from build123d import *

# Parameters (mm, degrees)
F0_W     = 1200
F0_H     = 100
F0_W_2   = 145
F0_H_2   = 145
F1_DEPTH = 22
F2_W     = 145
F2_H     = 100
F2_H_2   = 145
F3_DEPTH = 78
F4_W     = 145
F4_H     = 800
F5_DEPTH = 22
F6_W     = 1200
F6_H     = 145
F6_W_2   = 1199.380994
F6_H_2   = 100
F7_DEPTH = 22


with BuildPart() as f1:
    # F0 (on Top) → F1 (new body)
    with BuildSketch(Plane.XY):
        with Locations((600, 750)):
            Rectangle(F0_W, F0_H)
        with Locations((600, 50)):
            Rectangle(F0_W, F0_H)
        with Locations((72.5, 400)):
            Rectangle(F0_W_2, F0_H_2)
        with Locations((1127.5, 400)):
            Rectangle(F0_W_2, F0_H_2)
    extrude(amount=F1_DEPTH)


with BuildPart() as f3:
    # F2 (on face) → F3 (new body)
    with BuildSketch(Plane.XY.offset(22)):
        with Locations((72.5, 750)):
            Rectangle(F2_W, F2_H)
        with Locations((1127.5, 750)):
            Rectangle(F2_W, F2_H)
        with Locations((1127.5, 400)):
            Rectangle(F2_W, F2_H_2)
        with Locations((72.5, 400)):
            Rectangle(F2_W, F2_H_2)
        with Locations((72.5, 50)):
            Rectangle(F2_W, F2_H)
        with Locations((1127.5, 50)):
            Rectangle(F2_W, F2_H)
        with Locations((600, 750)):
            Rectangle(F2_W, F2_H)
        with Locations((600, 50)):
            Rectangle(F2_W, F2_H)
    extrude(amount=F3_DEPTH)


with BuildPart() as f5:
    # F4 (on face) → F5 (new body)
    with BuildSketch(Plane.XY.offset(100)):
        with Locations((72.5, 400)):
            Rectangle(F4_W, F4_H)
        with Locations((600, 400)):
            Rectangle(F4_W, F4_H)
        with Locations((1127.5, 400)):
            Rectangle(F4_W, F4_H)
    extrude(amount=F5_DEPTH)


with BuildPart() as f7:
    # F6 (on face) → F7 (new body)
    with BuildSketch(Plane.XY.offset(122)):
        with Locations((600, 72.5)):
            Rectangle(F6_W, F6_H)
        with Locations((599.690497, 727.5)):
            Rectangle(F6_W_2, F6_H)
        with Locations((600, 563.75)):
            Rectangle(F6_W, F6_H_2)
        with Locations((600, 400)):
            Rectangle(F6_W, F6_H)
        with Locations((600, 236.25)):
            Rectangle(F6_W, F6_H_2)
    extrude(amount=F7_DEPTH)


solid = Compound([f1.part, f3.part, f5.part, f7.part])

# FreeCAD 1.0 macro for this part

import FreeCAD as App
import Part
import Sketcher
Q = App.Units.Quantity

doc = App.newDocument("Part")
body = doc.addObject("PartDesign::Body", "Body")
body.AllowCompound = True

# Sketch on XY plane
sketch1 = body.newObject("Sketcher::SketchObject", "Sketch")
sketch1.AttachmentSupport = (doc.getObject("XY_Plane"), [""])
sketch1.MapMode = "FlatFace"
sketch1.addGeometry([
    Part.LineSegment(App.Vector(0, 800, 0), App.Vector(0, 700, 0)),  # 0
    Part.LineSegment(App.Vector(0, 700, 0), App.Vector(1200, 700, 0)),  # 1
    Part.LineSegment(App.Vector(1200, 700, 0), App.Vector(1200, 800, 0)),  # 2
    Part.LineSegment(App.Vector(1200, 800, 0), App.Vector(0, 800, 0)),  # 3
    Part.LineSegment(App.Vector(0, 100, 0), App.Vector(0, 0, 0)),  # 4
    Part.LineSegment(App.Vector(0, 0, 0), App.Vector(1200, 0, 0)),  # 5
    Part.LineSegment(App.Vector(1200, 0, 0), App.Vector(1200, 100, 0)),  # 6
    Part.LineSegment(App.Vector(1200, 100, 0), App.Vector(0, 100, 0)),  # 7
    Part.LineSegment(App.Vector(0, 472.5, 0), App.Vector(0, 327.5, 0)),  # 8
    Part.LineSegment(App.Vector(0, 327.5, 0), App.Vector(145, 327.5, 0)),  # 9
    Part.LineSegment(App.Vector(145, 327.5, 0), App.Vector(145, 472.5, 0)),  # 10
    Part.LineSegment(App.Vector(145, 472.5, 0), App.Vector(0, 472.5, 0)),  # 11
    Part.LineSegment(App.Vector(1055, 472.5, 0), App.Vector(1055, 327.5, 0)),  # 12
    Part.LineSegment(App.Vector(1055, 327.5, 0), App.Vector(1200, 327.5, 0)),  # 13
    Part.LineSegment(App.Vector(1200, 327.5, 0), App.Vector(1200, 472.5, 0)),  # 14
    Part.LineSegment(App.Vector(1200, 472.5, 0), App.Vector(1055, 472.5, 0)),  # 15
], False)
sketch1.addConstraint([
    Sketcher.Constraint("Coincident", 0, 2, 1, 1),
    Sketcher.Constraint("Coincident", 1, 2, 2, 1),
    Sketcher.Constraint("Coincident", 2, 2, 3, 1),
    Sketcher.Constraint("Coincident", 3, 2, 0, 1),
    Sketcher.Constraint("Coincident", 4, 2, 5, 1),
    Sketcher.Constraint("Coincident", 5, 2, 6, 1),
    Sketcher.Constraint("Coincident", 6, 2, 7, 1),
    Sketcher.Constraint("Coincident", 7, 2, 4, 1),
    Sketcher.Constraint("Coincident", 8, 2, 9, 1),
    Sketcher.Constraint("Coincident", 9, 2, 10, 1),
    Sketcher.Constraint("Coincident", 10, 2, 11, 1),
    Sketcher.Constraint("Coincident", 11, 2, 8, 1),
    Sketcher.Constraint("Coincident", 12, 2, 13, 1),
    Sketcher.Constraint("Coincident", 13, 2, 14, 1),
    Sketcher.Constraint("Coincident", 14, 2, 15, 1),
    Sketcher.Constraint("Coincident", 15, 2, 12, 1),
    Sketcher.Constraint("Vertical", 0),
    Sketcher.Constraint("Horizontal", 1),
    Sketcher.Constraint("Vertical", 2),
    Sketcher.Constraint("Horizontal", 3),
    Sketcher.Constraint("Vertical", 4),
    Sketcher.Constraint("Horizontal", 5),
    Sketcher.Constraint("Vertical", 6),
    Sketcher.Constraint("Horizontal", 7),
    Sketcher.Constraint("Vertical", 8),
    Sketcher.Constraint("Horizontal", 9),
    Sketcher.Constraint("Vertical", 10),
    Sketcher.Constraint("Horizontal", 11),
    Sketcher.Constraint("Vertical", 12),
    Sketcher.Constraint("Horizontal", 13),
    Sketcher.Constraint("Vertical", 14),
    Sketcher.Constraint("Horizontal", 15),
    Sketcher.Constraint("Coincident", 4, 2, -1, 1),
    Sketcher.Constraint("PointOnObject", 0, 2, -2),
    Sketcher.Constraint("PointOnObject", 8, 2, -2),
    Sketcher.Constraint("Horizontal", 9, 2, 12, 2),
    Sketcher.Constraint("Horizontal", 11, 2, 14, 2),
    Sketcher.Constraint("Vertical", 2, 2, 5, 2),
    Sketcher.Constraint("Vertical", 6, 2, 13, 2),
    Sketcher.Constraint("Equal", 11, 13),
    Sketcher.Constraint("Equal", 2, 4),
    Sketcher.Constraint("Equal", 15, 8),
    Sketcher.Constraint("DistanceX", 1, 1, 1, 2, Q("1200 mm")),
    Sketcher.Constraint("DistanceX", 9, 1, 9, 2, Q("145 mm")),
    Sketcher.Constraint("DistanceY", 0, 2, 0, 1, Q("100 mm")),
    Sketcher.Constraint("DistanceY", -1, 1, 0, 2, Q("700 mm")),
    Sketcher.Constraint("DistanceY", -1, 1, 8, 2, Q("327.5 mm")),
])
pad1 = body.newObject("PartDesign::Pad", "Pad")
pad1.Profile = sketch1
pad1.Length = 22
body2 = doc.addObject("PartDesign::Body", "Body001")
body2.AllowCompound = True

# Sketch on XY plane
sketch2 = body2.newObject("Sketcher::SketchObject", "Sketch001")
sketch2.AttachmentSupport = (doc.getObject("XY_Plane001"), [""])
sketch2.MapMode = "FlatFace"
sketch2.AttachmentOffset = App.Placement(App.Vector(0, 0, 22), App.Rotation())
sketch2.addGeometry([
    Part.LineSegment(App.Vector(0, 800, 0), App.Vector(0, 700, 0)),  # 0
    Part.LineSegment(App.Vector(0, 700, 0), App.Vector(145, 700, 0)),  # 1
    Part.LineSegment(App.Vector(145, 700, 0), App.Vector(145, 800, 0)),  # 2
    Part.LineSegment(App.Vector(145, 800, 0), App.Vector(0, 800, 0)),  # 3
    Part.LineSegment(App.Vector(1055, 800, 0), App.Vector(1055, 700, 0)),  # 4
    Part.LineSegment(App.Vector(1055, 700, 0), App.Vector(1200, 700, 0)),  # 5
    Part.LineSegment(App.Vector(1200, 700, 0), App.Vector(1200, 800, 0)),  # 6
    Part.LineSegment(App.Vector(1200, 800, 0), App.Vector(1055, 800, 0)),  # 7
    Part.LineSegment(App.Vector(1055, 472.5, 0), App.Vector(1055, 327.5, 0)),  # 8
    Part.LineSegment(App.Vector(1055, 327.5, 0), App.Vector(1200, 327.5, 0)),  # 9
    Part.LineSegment(App.Vector(1200, 327.5, 0), App.Vector(1200, 472.5, 0)),  # 10
    Part.LineSegment(App.Vector(1200, 472.5, 0), App.Vector(1055, 472.5, 0)),  # 11
    Part.LineSegment(App.Vector(0, 472.5, 0), App.Vector(0, 327.5, 0)),  # 12
    Part.LineSegment(App.Vector(0, 327.5, 0), App.Vector(145, 327.5, 0)),  # 13
    Part.LineSegment(App.Vector(145, 327.5, 0), App.Vector(145, 472.5, 0)),  # 14
    Part.LineSegment(App.Vector(145, 472.5, 0), App.Vector(0, 472.5, 0)),  # 15
    Part.LineSegment(App.Vector(0, 100, 0), App.Vector(0, 0, 0)),  # 16
    Part.LineSegment(App.Vector(0, 0, 0), App.Vector(145, 0, 0)),  # 17
    Part.LineSegment(App.Vector(145, 0, 0), App.Vector(145, 100, 0)),  # 18
    Part.LineSegment(App.Vector(145, 100, 0), App.Vector(0, 100, 0)),  # 19
    Part.LineSegment(App.Vector(1055, 100, 0), App.Vector(1055, 0, 0)),  # 20
    Part.LineSegment(App.Vector(1055, 0, 0), App.Vector(1200, 0, 0)),  # 21
    Part.LineSegment(App.Vector(1200, 0, 0), App.Vector(1200, 100, 0)),  # 22
    Part.LineSegment(App.Vector(1200, 100, 0), App.Vector(1055, 100, 0)),  # 23
    Part.LineSegment(App.Vector(527.5, 800, 0), App.Vector(527.5, 700, 0)),  # 24
    Part.LineSegment(App.Vector(527.5, 700, 0), App.Vector(672.5, 700, 0)),  # 25
    Part.LineSegment(App.Vector(672.5, 700, 0), App.Vector(672.5, 800, 0)),  # 26
    Part.LineSegment(App.Vector(672.5, 800, 0), App.Vector(527.5, 800, 0)),  # 27
    Part.LineSegment(App.Vector(527.5, 100, 0), App.Vector(527.5, 0, 0)),  # 28
    Part.LineSegment(App.Vector(527.5, 0, 0), App.Vector(672.5, 0, 0)),  # 29
    Part.LineSegment(App.Vector(672.5, 0, 0), App.Vector(672.5, 100, 0)),  # 30
    Part.LineSegment(App.Vector(672.5, 100, 0), App.Vector(527.5, 100, 0)),  # 31
], False)
sketch2.addConstraint([
    Sketcher.Constraint("Coincident", 0, 2, 1, 1),
    Sketcher.Constraint("Coincident", 1, 2, 2, 1),
    Sketcher.Constraint("Coincident", 2, 2, 3, 1),
    Sketcher.Constraint("Coincident", 3, 2, 0, 1),
    Sketcher.Constraint("Coincident", 4, 2, 5, 1),
    Sketcher.Constraint("Coincident", 5, 2, 6, 1),
    Sketcher.Constraint("Coincident", 6, 2, 7, 1),
    Sketcher.Constraint("Coincident", 7, 2, 4, 1),
    Sketcher.Constraint("Coincident", 8, 2, 9, 1),
    Sketcher.Constraint("Coincident", 9, 2, 10, 1),
    Sketcher.Constraint("Coincident", 10, 2, 11, 1),
    Sketcher.Constraint("Coincident", 11, 2, 8, 1),
    Sketcher.Constraint("Coincident", 12, 2, 13, 1),
    Sketcher.Constraint("Coincident", 13, 2, 14, 1),
    Sketcher.Constraint("Coincident", 14, 2, 15, 1),
    Sketcher.Constraint("Coincident", 15, 2, 12, 1),
    Sketcher.Constraint("Coincident", 16, 2, 17, 1),
    Sketcher.Constraint("Coincident", 17, 2, 18, 1),
    Sketcher.Constraint("Coincident", 18, 2, 19, 1),
    Sketcher.Constraint("Coincident", 19, 2, 16, 1),
    Sketcher.Constraint("Coincident", 20, 2, 21, 1),
    Sketcher.Constraint("Coincident", 21, 2, 22, 1),
    Sketcher.Constraint("Coincident", 22, 2, 23, 1),
    Sketcher.Constraint("Coincident", 23, 2, 20, 1),
    Sketcher.Constraint("Coincident", 24, 2, 25, 1),
    Sketcher.Constraint("Coincident", 25, 2, 26, 1),
    Sketcher.Constraint("Coincident", 26, 2, 27, 1),
    Sketcher.Constraint("Coincident", 27, 2, 24, 1),
    Sketcher.Constraint("Coincident", 28, 2, 29, 1),
    Sketcher.Constraint("Coincident", 29, 2, 30, 1),
    Sketcher.Constraint("Coincident", 30, 2, 31, 1),
    Sketcher.Constraint("Coincident", 31, 2, 28, 1),
    Sketcher.Constraint("Vertical", 0),
    Sketcher.Constraint("Horizontal", 1),
    Sketcher.Constraint("Vertical", 2),
    Sketcher.Constraint("Horizontal", 3),
    Sketcher.Constraint("Vertical", 4),
    Sketcher.Constraint("Horizontal", 5),
    Sketcher.Constraint("Vertical", 6),
    Sketcher.Constraint("Horizontal", 7),
    Sketcher.Constraint("Vertical", 8),
    Sketcher.Constraint("Horizontal", 9),
    Sketcher.Constraint("Vertical", 10),
    Sketcher.Constraint("Horizontal", 11),
    Sketcher.Constraint("Vertical", 12),
    Sketcher.Constraint("Horizontal", 13),
    Sketcher.Constraint("Vertical", 14),
    Sketcher.Constraint("Horizontal", 15),
    Sketcher.Constraint("Vertical", 16),
    Sketcher.Constraint("Horizontal", 17),
    Sketcher.Constraint("Vertical", 18),
    Sketcher.Constraint("Horizontal", 19),
    Sketcher.Constraint("Vertical", 20),
    Sketcher.Constraint("Horizontal", 21),
    Sketcher.Constraint("Vertical", 22),
    Sketcher.Constraint("Horizontal", 23),
    Sketcher.Constraint("Vertical", 24),
    Sketcher.Constraint("Horizontal", 25),
    Sketcher.Constraint("Vertical", 26),
    Sketcher.Constraint("Horizontal", 27),
    Sketcher.Constraint("Vertical", 28),
    Sketcher.Constraint("Horizontal", 29),
    Sketcher.Constraint("Vertical", 30),
    Sketcher.Constraint("Horizontal", 31),
    Sketcher.Constraint("Coincident", 16, 2, -1, 1),
    Sketcher.Constraint("PointOnObject", 0, 2, -2),
    Sketcher.Constraint("PointOnObject", 12, 2, -2),
    Sketcher.Constraint("PointOnObject", 20, 2, -1),
    Sketcher.Constraint("PointOnObject", 28, 2, -1),
    Sketcher.Constraint("Horizontal", 1, 2, 4, 2),
    Sketcher.Constraint("Horizontal", 3, 2, 6, 2),
    Sketcher.Constraint("Horizontal", 9, 2, 12, 2),
    Sketcher.Constraint("Horizontal", 11, 2, 14, 2),
    Sketcher.Constraint("Horizontal", 19, 2, 22, 2),
    Sketcher.Constraint("Horizontal", 5, 2, 24, 2),
    Sketcher.Constraint("Horizontal", 7, 2, 26, 2),
    Sketcher.Constraint("Horizontal", 23, 2, 30, 2),
    Sketcher.Constraint("Vertical", 7, 2, 8, 2),
    Sketcher.Constraint("Vertical", 6, 2, 9, 2),
    Sketcher.Constraint("Vertical", 2, 2, 13, 2),
    Sketcher.Constraint("Vertical", 14, 2, 17, 2),
    Sketcher.Constraint("Vertical", 11, 2, 20, 2),
    Sketcher.Constraint("Vertical", 10, 2, 21, 2),
    Sketcher.Constraint("Vertical", 27, 2, 28, 2),
    Sketcher.Constraint("Vertical", 26, 2, 29, 2),
    Sketcher.Constraint("Equal", 3, 5),
    Sketcher.Constraint("Equal", 23, 25),
    Sketcher.Constraint("Equal", 31, 8),
    Sketcher.Constraint("Equal", 6, 16),
    Sketcher.Constraint("DistanceX", 1, 1, 1, 2, Q("145 mm")),
    Sketcher.Constraint("DistanceY", 0, 2, 0, 1, Q("100 mm")),
    Sketcher.Constraint("DistanceY", -1, 1, 0, 2, Q("700 mm")),
    Sketcher.Constraint("DistanceX", -1, 1, 4, 2, Q("1055 mm")),
    Sketcher.Constraint("DistanceY", -1, 1, 8, 2, Q("327.5 mm")),
    Sketcher.Constraint("DistanceX", -1, 1, 24, 2, Q("527.5 mm")),
])
pad2 = body2.newObject("PartDesign::Pad", "Pad001")
pad2.Profile = sketch2
pad2.Length = 78
body3 = doc.addObject("PartDesign::Body", "Body002")
body3.AllowCompound = True

# Sketch on XY plane
sketch3 = body3.newObject("Sketcher::SketchObject", "Sketch002")
sketch3.AttachmentSupport = (doc.getObject("XY_Plane002"), [""])
sketch3.MapMode = "FlatFace"
sketch3.AttachmentOffset = App.Placement(App.Vector(0, 0, 100), App.Rotation())
sketch3.addGeometry([
    Part.LineSegment(App.Vector(0, 800, 0), App.Vector(0, 0, 0)),  # 0
    Part.LineSegment(App.Vector(0, 0, 0), App.Vector(145, 0, 0)),  # 1
    Part.LineSegment(App.Vector(145, 0, 0), App.Vector(145, 800, 0)),  # 2
    Part.LineSegment(App.Vector(145, 800, 0), App.Vector(0, 800, 0)),  # 3
    Part.LineSegment(App.Vector(527.5, 800, 0), App.Vector(527.5, 0, 0)),  # 4
    Part.LineSegment(App.Vector(527.5, 0, 0), App.Vector(672.5, 0, 0)),  # 5
    Part.LineSegment(App.Vector(672.5, 0, 0), App.Vector(672.5, 800, 0)),  # 6
    Part.LineSegment(App.Vector(672.5, 800, 0), App.Vector(527.5, 800, 0)),  # 7
    Part.LineSegment(App.Vector(1055, 800, 0), App.Vector(1055, 0, 0)),  # 8
    Part.LineSegment(App.Vector(1055, 0, 0), App.Vector(1200, 0, 0)),  # 9
    Part.LineSegment(App.Vector(1200, 0, 0), App.Vector(1200, 800, 0)),  # 10
    Part.LineSegment(App.Vector(1200, 800, 0), App.Vector(1055, 800, 0)),  # 11
], False)
sketch3.addConstraint([
    Sketcher.Constraint("Coincident", 0, 2, 1, 1),
    Sketcher.Constraint("Coincident", 1, 2, 2, 1),
    Sketcher.Constraint("Coincident", 2, 2, 3, 1),
    Sketcher.Constraint("Coincident", 3, 2, 0, 1),
    Sketcher.Constraint("Coincident", 4, 2, 5, 1),
    Sketcher.Constraint("Coincident", 5, 2, 6, 1),
    Sketcher.Constraint("Coincident", 6, 2, 7, 1),
    Sketcher.Constraint("Coincident", 7, 2, 4, 1),
    Sketcher.Constraint("Coincident", 8, 2, 9, 1),
    Sketcher.Constraint("Coincident", 9, 2, 10, 1),
    Sketcher.Constraint("Coincident", 10, 2, 11, 1),
    Sketcher.Constraint("Coincident", 11, 2, 8, 1),
    Sketcher.Constraint("Vertical", 0),
    Sketcher.Constraint("Horizontal", 1),
    Sketcher.Constraint("Vertical", 2),
    Sketcher.Constraint("Horizontal", 3),
    Sketcher.Constraint("Vertical", 4),
    Sketcher.Constraint("Horizontal", 5),
    Sketcher.Constraint("Vertical", 6),
    Sketcher.Constraint("Horizontal", 7),
    Sketcher.Constraint("Vertical", 8),
    Sketcher.Constraint("Horizontal", 9),
    Sketcher.Constraint("Vertical", 10),
    Sketcher.Constraint("Horizontal", 11),
    Sketcher.Constraint("Coincident", 0, 2, -1, 1),
    Sketcher.Constraint("PointOnObject", 4, 2, -1),
    Sketcher.Constraint("PointOnObject", 8, 2, -1),
    Sketcher.Constraint("Horizontal", 3, 2, 6, 2),
    Sketcher.Constraint("Horizontal", 7, 2, 10, 2),
    Sketcher.Constraint("Equal", 3, 5),
    Sketcher.Constraint("Equal", 7, 9),
    Sketcher.Constraint("DistanceX", 1, 1, 1, 2, Q("145 mm")),
    Sketcher.Constraint("DistanceY", 0, 2, 0, 1, Q("800 mm")),
    Sketcher.Constraint("DistanceX", -1, 1, 8, 2, Q("1055 mm")),
    Sketcher.Constraint("DistanceX", -1, 1, 4, 2, Q("527.5 mm")),
])
pad3 = body3.newObject("PartDesign::Pad", "Pad002")
pad3.Profile = sketch3
pad3.Length = 22
body4 = doc.addObject("PartDesign::Body", "Body003")
body4.AllowCompound = True

# Sketch on XY plane
sketch4 = body4.newObject("Sketcher::SketchObject", "Sketch003")
sketch4.AttachmentSupport = (doc.getObject("XY_Plane003"), [""])
sketch4.MapMode = "FlatFace"
sketch4.AttachmentOffset = App.Placement(App.Vector(0, 0, 122), App.Rotation())
sketch4.addGeometry([
    Part.LineSegment(App.Vector(0, 145, 0), App.Vector(0, 0, 0)),  # 0
    Part.LineSegment(App.Vector(0, 0, 0), App.Vector(1200, 0, 0)),  # 1
    Part.LineSegment(App.Vector(1200, 0, 0), App.Vector(1200, 145, 0)),  # 2
    Part.LineSegment(App.Vector(1200, 145, 0), App.Vector(0, 145, 0)),  # 3
    Part.LineSegment(App.Vector(0, 800, 0), App.Vector(0, 655, 0)),  # 4
    Part.LineSegment(App.Vector(0, 655, 0), App.Vector(1199.380994, 655, 0)),  # 5
    Part.LineSegment(App.Vector(1199.380994, 655, 0), App.Vector(1199.380994, 800, 0)),  # 6
    Part.LineSegment(App.Vector(1199.380994, 800, 0), App.Vector(0, 800, 0)),  # 7
    Part.LineSegment(App.Vector(0, 613.75, 0), App.Vector(0, 513.75, 0)),  # 8
    Part.LineSegment(App.Vector(0, 513.75, 0), App.Vector(1200, 513.75, 0)),  # 9
    Part.LineSegment(App.Vector(1200, 513.75, 0), App.Vector(1200, 613.75, 0)),  # 10
    Part.LineSegment(App.Vector(1200, 613.75, 0), App.Vector(0, 613.75, 0)),  # 11
    Part.LineSegment(App.Vector(0, 472.5, 0), App.Vector(0, 327.5, 0)),  # 12
    Part.LineSegment(App.Vector(0, 327.5, 0), App.Vector(1200, 327.5, 0)),  # 13
    Part.LineSegment(App.Vector(1200, 327.5, 0), App.Vector(1200, 472.5, 0)),  # 14
    Part.LineSegment(App.Vector(1200, 472.5, 0), App.Vector(0, 472.5, 0)),  # 15
    Part.LineSegment(App.Vector(0, 286.25, 0), App.Vector(0, 186.25, 0)),  # 16
    Part.LineSegment(App.Vector(0, 186.25, 0), App.Vector(1200, 186.25, 0)),  # 17
    Part.LineSegment(App.Vector(1200, 186.25, 0), App.Vector(1200, 286.25, 0)),  # 18
    Part.LineSegment(App.Vector(1200, 286.25, 0), App.Vector(0, 286.25, 0)),  # 19
], False)
sketch4.addConstraint([
    Sketcher.Constraint("Coincident", 0, 2, 1, 1),
    Sketcher.Constraint("Coincident", 1, 2, 2, 1),
    Sketcher.Constraint("Coincident", 2, 2, 3, 1),
    Sketcher.Constraint("Coincident", 3, 2, 0, 1),
    Sketcher.Constraint("Coincident", 4, 2, 5, 1),
    Sketcher.Constraint("Coincident", 5, 2, 6, 1),
    Sketcher.Constraint("Coincident", 6, 2, 7, 1),
    Sketcher.Constraint("Coincident", 7, 2, 4, 1),
    Sketcher.Constraint("Coincident", 8, 2, 9, 1),
    Sketcher.Constraint("Coincident", 9, 2, 10, 1),
    Sketcher.Constraint("Coincident", 10, 2, 11, 1),
    Sketcher.Constraint("Coincident", 11, 2, 8, 1),
    Sketcher.Constraint("Coincident", 12, 2, 13, 1),
    Sketcher.Constraint("Coincident", 13, 2, 14, 1),
    Sketcher.Constraint("Coincident", 14, 2, 15, 1),
    Sketcher.Constraint("Coincident", 15, 2, 12, 1),
    Sketcher.Constraint("Coincident", 16, 2, 17, 1),
    Sketcher.Constraint("Coincident", 17, 2, 18, 1),
    Sketcher.Constraint("Coincident", 18, 2, 19, 1),
    Sketcher.Constraint("Coincident", 19, 2, 16, 1),
    Sketcher.Constraint("Vertical", 0),
    Sketcher.Constraint("Horizontal", 1),
    Sketcher.Constraint("Vertical", 2),
    Sketcher.Constraint("Horizontal", 3),
    Sketcher.Constraint("Vertical", 4),
    Sketcher.Constraint("Horizontal", 5),
    Sketcher.Constraint("Vertical", 6),
    Sketcher.Constraint("Horizontal", 7),
    Sketcher.Constraint("Vertical", 8),
    Sketcher.Constraint("Horizontal", 9),
    Sketcher.Constraint("Vertical", 10),
    Sketcher.Constraint("Horizontal", 11),
    Sketcher.Constraint("Vertical", 12),
    Sketcher.Constraint("Horizontal", 13),
    Sketcher.Constraint("Vertical", 14),
    Sketcher.Constraint("Horizontal", 15),
    Sketcher.Constraint("Vertical", 16),
    Sketcher.Constraint("Horizontal", 17),
    Sketcher.Constraint("Vertical", 18),
    Sketcher.Constraint("Horizontal", 19),
    Sketcher.Constraint("Coincident", 0, 2, -1, 1),
    Sketcher.Constraint("PointOnObject", 4, 2, -2),
    Sketcher.Constraint("PointOnObject", 8, 2, -2),
    Sketcher.Constraint("PointOnObject", 12, 2, -2),
    Sketcher.Constraint("PointOnObject", 16, 2, -2),
    Sketcher.Constraint("Vertical", 2, 2, 9, 2),
    Sketcher.Constraint("Vertical", 10, 2, 13, 2),
    Sketcher.Constraint("Vertical", 14, 2, 17, 2),
    Sketcher.Constraint("Equal", 2, 4),
    Sketcher.Constraint("Equal", 6, 12),
    Sketcher.Constraint("Equal", 10, 16),
    Sketcher.Constraint("DistanceX", 1, 1, 1, 2, Q("1200 mm")),
    Sketcher.Constraint("DistanceY", 0, 2, 0, 1, Q("145 mm")),
    Sketcher.Constraint("DistanceY", 8, 2, 8, 1, Q("100 mm")),
    Sketcher.Constraint("DistanceY", -1, 1, 4, 2, Q("655 mm")),
    Sketcher.Constraint("DistanceY", -1, 1, 12, 2, Q("327.5 mm")),
    Sketcher.Constraint("DistanceY", 16, 2, 8, 2, Q("327.5 mm")),
    Sketcher.Constraint("DistanceY", -1, 1, 8, 2, Q("513.75 mm")),
    Sketcher.Constraint("DistanceX", 5, 1, 5, 2, Q("1199.380994 mm")),
])
pad4 = body4.newObject("PartDesign::Pad", "Pad003")
pad4.Profile = sketch4
pad4.Length = 22

doc.recompute()
